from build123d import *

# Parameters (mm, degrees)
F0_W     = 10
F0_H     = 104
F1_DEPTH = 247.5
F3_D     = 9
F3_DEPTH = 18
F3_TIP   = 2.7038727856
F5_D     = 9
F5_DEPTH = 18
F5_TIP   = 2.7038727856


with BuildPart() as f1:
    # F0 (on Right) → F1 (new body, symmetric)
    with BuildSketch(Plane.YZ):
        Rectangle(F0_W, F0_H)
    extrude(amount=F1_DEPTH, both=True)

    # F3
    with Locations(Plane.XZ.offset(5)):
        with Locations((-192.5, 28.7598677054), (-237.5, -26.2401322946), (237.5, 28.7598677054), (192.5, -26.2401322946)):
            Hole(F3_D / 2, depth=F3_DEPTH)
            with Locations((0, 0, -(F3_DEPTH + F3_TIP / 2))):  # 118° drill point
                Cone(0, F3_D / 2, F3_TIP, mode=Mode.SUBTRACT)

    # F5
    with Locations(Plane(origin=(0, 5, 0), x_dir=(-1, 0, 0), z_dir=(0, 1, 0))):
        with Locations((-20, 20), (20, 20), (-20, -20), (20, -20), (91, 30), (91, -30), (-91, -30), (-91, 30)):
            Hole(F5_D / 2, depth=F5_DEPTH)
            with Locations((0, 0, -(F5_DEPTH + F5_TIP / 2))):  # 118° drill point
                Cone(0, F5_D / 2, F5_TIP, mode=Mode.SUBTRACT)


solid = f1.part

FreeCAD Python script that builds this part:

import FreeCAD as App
import Part
import Sketcher

V = App.Vector

doc = App.newDocument("Part")
body = doc.addObject("PartDesign::Body", "Body")

# Sketch on YZ plane
sketch1 = body.newObject("Sketcher::SketchObject", "Sketch")
sketch1.AttachmentSupport = (doc.getObject("YZ_Plane"), [""])
sketch1.MapMode = "FlatFace"
sketch1.addGeometry(Part.LineSegment(V(-5, 52, 0), V(-5, -52, 0)), False)
sketch1.addGeometry(Part.LineSegment(V(-5, -52, 0), V(5, -52, 0)), False)
sketch1.addGeometry(Part.LineSegment(V(5, -52, 0), V(5, 52, 0)), False)
sketch1.addGeometry(Part.LineSegment(V(5, 52, 0), V(-5, 52, 0)), False)
sketch1.addConstraint(Sketcher.Constraint("Coincident", 0, 2, 1, 1))
sketch1.addConstraint(Sketcher.Constraint("Coincident", 1, 2, 2, 1))
sketch1.addConstraint(Sketcher.Constraint("Coincident", 2, 2, 3, 1))
sketch1.addConstraint(Sketcher.Constraint("Coincident", 3, 2, 0, 1))
sketch1.addConstraint(Sketcher.Constraint("Vertical", 0))
sketch1.addConstraint(Sketcher.Constraint("Horizontal", 1))
sketch1.addConstraint(Sketcher.Constraint("Vertical", 2))
sketch1.addConstraint(Sketcher.Constraint("Horizontal", 3))
sketch1.addConstraint(Sketcher.Constraint("Symmetric", 0, 2, 2, 2, -1, 1))
sketch1.addConstraint(Sketcher.Constraint("DistanceX", 1, 1, 1, 2, 10.0))
sketch1.addConstraint(Sketcher.Constraint("DistanceY", 0, 2, 0, 1, 104.0))
pad1 = body.newObject("PartDesign::Pad", "Pad")
pad1.Profile = sketch1
pad1.Length = 495
pad1.Midplane = True

# Sketch on XZ plane
sketch2 = body.newObject("Sketcher::SketchObject", "Sketch001")
sketch2.AttachmentSupport = (doc.getObject("XZ_Plane"), [""])
sketch2.MapMode = "FlatFace"
sketch2.AttachmentOffset = App.Placement(V(0, 0, 5), App.Rotation())
sketch2.addGeometry(Part.Circle(V(-192.5, 28.8, 0), V(0, 0, 1), 4.5), False)
sketch2.addGeometry(Part.Circle(V(-237.5, -26.2, 0), V(0, 0, 1), 4.5), False)
sketch2.addGeometry(Part.Circle(V(237.5, 28.8, 0), V(0, 0, 1), 4.5), False)
sketch2.addGeometry(Part.Circle(V(192.5, -26.2, 0), V(0, 0, 1), 4.5), False)
sketch2.addConstraint(Sketcher.Constraint("Equal", 0, 1))
sketch2.addConstraint(Sketcher.Constraint("Equal", 1, 2))
sketch2.addConstraint(Sketcher.Constraint("Equal", 2, 3))
sketch2.addConstraint(Sketcher.Constraint("Horizontal", 0, 3, 2, 3))
sketch2.addConstraint(Sketcher.Constraint("Horizontal", 1, 3, 3, 3))
sketch2.addConstraint(Sketcher.Constraint("Diameter", 0, 9.0))
sketch2.addConstraint(Sketcher.Constraint("DistanceX", 1, 3, 0, 3, 45.0))
sketch2.addConstraint(Sketcher.Constraint("DistanceY", 1, 3, 0, 3, 55.0))
sketch2.addConstraint(Sketcher.Constraint("DistanceX", 0, 3, 2, 3, 430.0))
sketch2.addConstraint(Sketcher.Constraint("DistanceX", 3, 3, 2, 3, 45.0))
sketch2.addConstraint(Sketcher.Constraint("DistanceX", 0, 3, -1, 1, 192.5))
sketch2.addConstraint(Sketcher.Constraint("DistanceY", -1, 1, 0, 3, 28.759868))
doc.recompute()
hole = body.newObject("PartDesign::Hole", "Hole")
hole.Profile = sketch2
hole.ThreadType = "None"
hole.Diameter = 9
hole.DepthType = "Dimension"
hole.Depth = 18
hole.DrillPoint = "Angled"
hole.DrillPointAngle = 118

# Sketch on XZ plane
sketch3 = body.newObject("Sketcher::SketchObject", "Sketch002")
sketch3.AttachmentSupport = (doc.getObject("XZ_Plane"), [""])
sketch3.MapMode = "FlatFace"
sketch3.AttachmentOffset = App.Placement(V(0, 0, -5), App.Rotation())
sketch3.addGeometry(Part.Circle(V(20, 20, 0), V(0, 0, 1), 4.5), False)
sketch3.addGeometry(Part.Circle(V(-20, 20, 0), V(0, 0, 1), 4.5), False)
sketch3.addGeometry(Part.Circle(V(20, -20, 0), V(0, 0, 1), 4.5), False)
sketch3.addGeometry(Part.Circle(V(-20, -20, 0), V(0, 0, 1), 4.5), False)
sketch3.addGeometry(Part.Circle(V(-91, 30, 0), V(0, 0, 1), 4.5), False)
sketch3.addGeometry(Part.Circle(V(-91, -30, 0), V(0, 0, 1), 4.5), False)
sketch3.addGeometry(Part.Circle(V(91, -30, 0), V(0, 0, 1), 4.5), False)
sketch3.addGeometry(Part.Circle(V(91, 30, 0), V(0, 0, 1), 4.5), False)
sketch3.addConstraint(Sketcher.Constraint("Equal", 0, 1))
sketch3.addConstraint(Sketcher.Constraint("Equal", 1, 2))
sketch3.addConstraint(Sketcher.Constraint("Equal", 2, 3))
sketch3.addConstraint(Sketcher.Constraint("Equal", 3, 4))
sketch3.addConstraint(Sketcher.Constraint("Equal", 4, 5))
sketch3.addConstraint(Sketcher.Constraint("Equal", 5, 6))
sketch3.addConstraint(Sketcher.Constraint("Equal", 6, 7))
sketch3.addConstraint(Sketcher.Constraint("Symmetric", 1, 3, 2, 3, -1, 1))
sketch3.addConstraint(Sketcher.Constraint("Symmetric", 0, 3, 3, 3, -1, 1))
sketch3.addConstraint(Sketcher.Constraint("Symmetric", 4, 3, 6, 3, -1, 1))
sketch3.addConstraint(Sketcher.Constraint("Symmetric", 5, 3, 7, 3, -1, 1))
sketch3.addConstraint(Sketcher.Constraint("Symmetric", 0, 3, 1, 3, -2))
sketch3.addConstraint(Sketcher.Constraint("Symmetric", 5, 3, 6, 3, -2))
sketch3.addConstraint(Sketcher.Constraint("Diameter", 0, 9.0))
sketch3.addConstraint(Sketcher.Constraint("DistanceX", -1, 1, 0, 3, 20.0))
sketch3.addConstraint(Sketcher.Constraint("DistanceY", -1, 1, 0, 3, 20.0))
sketch3.addConstraint(Sketcher.Constraint("DistanceX", 4, 3, -1, 1, 91.0))
sketch3.addConstraint(Sketcher.Constraint("DistanceY", -1, 1, 4, 3, 30.0))
doc.recompute()
hole2 = body.newObject("PartDesign::Hole", "Hole001")
hole2.Profile = sketch3
hole2.ThreadType = "None"
hole2.Diameter = 9
hole2.DepthType = "Dimension"
hole2.Depth = 18
hole2.DrillPoint = "Angled"
hole2.DrillPointAngle = 118
hole2.Reversed = True

doc.recompute()
